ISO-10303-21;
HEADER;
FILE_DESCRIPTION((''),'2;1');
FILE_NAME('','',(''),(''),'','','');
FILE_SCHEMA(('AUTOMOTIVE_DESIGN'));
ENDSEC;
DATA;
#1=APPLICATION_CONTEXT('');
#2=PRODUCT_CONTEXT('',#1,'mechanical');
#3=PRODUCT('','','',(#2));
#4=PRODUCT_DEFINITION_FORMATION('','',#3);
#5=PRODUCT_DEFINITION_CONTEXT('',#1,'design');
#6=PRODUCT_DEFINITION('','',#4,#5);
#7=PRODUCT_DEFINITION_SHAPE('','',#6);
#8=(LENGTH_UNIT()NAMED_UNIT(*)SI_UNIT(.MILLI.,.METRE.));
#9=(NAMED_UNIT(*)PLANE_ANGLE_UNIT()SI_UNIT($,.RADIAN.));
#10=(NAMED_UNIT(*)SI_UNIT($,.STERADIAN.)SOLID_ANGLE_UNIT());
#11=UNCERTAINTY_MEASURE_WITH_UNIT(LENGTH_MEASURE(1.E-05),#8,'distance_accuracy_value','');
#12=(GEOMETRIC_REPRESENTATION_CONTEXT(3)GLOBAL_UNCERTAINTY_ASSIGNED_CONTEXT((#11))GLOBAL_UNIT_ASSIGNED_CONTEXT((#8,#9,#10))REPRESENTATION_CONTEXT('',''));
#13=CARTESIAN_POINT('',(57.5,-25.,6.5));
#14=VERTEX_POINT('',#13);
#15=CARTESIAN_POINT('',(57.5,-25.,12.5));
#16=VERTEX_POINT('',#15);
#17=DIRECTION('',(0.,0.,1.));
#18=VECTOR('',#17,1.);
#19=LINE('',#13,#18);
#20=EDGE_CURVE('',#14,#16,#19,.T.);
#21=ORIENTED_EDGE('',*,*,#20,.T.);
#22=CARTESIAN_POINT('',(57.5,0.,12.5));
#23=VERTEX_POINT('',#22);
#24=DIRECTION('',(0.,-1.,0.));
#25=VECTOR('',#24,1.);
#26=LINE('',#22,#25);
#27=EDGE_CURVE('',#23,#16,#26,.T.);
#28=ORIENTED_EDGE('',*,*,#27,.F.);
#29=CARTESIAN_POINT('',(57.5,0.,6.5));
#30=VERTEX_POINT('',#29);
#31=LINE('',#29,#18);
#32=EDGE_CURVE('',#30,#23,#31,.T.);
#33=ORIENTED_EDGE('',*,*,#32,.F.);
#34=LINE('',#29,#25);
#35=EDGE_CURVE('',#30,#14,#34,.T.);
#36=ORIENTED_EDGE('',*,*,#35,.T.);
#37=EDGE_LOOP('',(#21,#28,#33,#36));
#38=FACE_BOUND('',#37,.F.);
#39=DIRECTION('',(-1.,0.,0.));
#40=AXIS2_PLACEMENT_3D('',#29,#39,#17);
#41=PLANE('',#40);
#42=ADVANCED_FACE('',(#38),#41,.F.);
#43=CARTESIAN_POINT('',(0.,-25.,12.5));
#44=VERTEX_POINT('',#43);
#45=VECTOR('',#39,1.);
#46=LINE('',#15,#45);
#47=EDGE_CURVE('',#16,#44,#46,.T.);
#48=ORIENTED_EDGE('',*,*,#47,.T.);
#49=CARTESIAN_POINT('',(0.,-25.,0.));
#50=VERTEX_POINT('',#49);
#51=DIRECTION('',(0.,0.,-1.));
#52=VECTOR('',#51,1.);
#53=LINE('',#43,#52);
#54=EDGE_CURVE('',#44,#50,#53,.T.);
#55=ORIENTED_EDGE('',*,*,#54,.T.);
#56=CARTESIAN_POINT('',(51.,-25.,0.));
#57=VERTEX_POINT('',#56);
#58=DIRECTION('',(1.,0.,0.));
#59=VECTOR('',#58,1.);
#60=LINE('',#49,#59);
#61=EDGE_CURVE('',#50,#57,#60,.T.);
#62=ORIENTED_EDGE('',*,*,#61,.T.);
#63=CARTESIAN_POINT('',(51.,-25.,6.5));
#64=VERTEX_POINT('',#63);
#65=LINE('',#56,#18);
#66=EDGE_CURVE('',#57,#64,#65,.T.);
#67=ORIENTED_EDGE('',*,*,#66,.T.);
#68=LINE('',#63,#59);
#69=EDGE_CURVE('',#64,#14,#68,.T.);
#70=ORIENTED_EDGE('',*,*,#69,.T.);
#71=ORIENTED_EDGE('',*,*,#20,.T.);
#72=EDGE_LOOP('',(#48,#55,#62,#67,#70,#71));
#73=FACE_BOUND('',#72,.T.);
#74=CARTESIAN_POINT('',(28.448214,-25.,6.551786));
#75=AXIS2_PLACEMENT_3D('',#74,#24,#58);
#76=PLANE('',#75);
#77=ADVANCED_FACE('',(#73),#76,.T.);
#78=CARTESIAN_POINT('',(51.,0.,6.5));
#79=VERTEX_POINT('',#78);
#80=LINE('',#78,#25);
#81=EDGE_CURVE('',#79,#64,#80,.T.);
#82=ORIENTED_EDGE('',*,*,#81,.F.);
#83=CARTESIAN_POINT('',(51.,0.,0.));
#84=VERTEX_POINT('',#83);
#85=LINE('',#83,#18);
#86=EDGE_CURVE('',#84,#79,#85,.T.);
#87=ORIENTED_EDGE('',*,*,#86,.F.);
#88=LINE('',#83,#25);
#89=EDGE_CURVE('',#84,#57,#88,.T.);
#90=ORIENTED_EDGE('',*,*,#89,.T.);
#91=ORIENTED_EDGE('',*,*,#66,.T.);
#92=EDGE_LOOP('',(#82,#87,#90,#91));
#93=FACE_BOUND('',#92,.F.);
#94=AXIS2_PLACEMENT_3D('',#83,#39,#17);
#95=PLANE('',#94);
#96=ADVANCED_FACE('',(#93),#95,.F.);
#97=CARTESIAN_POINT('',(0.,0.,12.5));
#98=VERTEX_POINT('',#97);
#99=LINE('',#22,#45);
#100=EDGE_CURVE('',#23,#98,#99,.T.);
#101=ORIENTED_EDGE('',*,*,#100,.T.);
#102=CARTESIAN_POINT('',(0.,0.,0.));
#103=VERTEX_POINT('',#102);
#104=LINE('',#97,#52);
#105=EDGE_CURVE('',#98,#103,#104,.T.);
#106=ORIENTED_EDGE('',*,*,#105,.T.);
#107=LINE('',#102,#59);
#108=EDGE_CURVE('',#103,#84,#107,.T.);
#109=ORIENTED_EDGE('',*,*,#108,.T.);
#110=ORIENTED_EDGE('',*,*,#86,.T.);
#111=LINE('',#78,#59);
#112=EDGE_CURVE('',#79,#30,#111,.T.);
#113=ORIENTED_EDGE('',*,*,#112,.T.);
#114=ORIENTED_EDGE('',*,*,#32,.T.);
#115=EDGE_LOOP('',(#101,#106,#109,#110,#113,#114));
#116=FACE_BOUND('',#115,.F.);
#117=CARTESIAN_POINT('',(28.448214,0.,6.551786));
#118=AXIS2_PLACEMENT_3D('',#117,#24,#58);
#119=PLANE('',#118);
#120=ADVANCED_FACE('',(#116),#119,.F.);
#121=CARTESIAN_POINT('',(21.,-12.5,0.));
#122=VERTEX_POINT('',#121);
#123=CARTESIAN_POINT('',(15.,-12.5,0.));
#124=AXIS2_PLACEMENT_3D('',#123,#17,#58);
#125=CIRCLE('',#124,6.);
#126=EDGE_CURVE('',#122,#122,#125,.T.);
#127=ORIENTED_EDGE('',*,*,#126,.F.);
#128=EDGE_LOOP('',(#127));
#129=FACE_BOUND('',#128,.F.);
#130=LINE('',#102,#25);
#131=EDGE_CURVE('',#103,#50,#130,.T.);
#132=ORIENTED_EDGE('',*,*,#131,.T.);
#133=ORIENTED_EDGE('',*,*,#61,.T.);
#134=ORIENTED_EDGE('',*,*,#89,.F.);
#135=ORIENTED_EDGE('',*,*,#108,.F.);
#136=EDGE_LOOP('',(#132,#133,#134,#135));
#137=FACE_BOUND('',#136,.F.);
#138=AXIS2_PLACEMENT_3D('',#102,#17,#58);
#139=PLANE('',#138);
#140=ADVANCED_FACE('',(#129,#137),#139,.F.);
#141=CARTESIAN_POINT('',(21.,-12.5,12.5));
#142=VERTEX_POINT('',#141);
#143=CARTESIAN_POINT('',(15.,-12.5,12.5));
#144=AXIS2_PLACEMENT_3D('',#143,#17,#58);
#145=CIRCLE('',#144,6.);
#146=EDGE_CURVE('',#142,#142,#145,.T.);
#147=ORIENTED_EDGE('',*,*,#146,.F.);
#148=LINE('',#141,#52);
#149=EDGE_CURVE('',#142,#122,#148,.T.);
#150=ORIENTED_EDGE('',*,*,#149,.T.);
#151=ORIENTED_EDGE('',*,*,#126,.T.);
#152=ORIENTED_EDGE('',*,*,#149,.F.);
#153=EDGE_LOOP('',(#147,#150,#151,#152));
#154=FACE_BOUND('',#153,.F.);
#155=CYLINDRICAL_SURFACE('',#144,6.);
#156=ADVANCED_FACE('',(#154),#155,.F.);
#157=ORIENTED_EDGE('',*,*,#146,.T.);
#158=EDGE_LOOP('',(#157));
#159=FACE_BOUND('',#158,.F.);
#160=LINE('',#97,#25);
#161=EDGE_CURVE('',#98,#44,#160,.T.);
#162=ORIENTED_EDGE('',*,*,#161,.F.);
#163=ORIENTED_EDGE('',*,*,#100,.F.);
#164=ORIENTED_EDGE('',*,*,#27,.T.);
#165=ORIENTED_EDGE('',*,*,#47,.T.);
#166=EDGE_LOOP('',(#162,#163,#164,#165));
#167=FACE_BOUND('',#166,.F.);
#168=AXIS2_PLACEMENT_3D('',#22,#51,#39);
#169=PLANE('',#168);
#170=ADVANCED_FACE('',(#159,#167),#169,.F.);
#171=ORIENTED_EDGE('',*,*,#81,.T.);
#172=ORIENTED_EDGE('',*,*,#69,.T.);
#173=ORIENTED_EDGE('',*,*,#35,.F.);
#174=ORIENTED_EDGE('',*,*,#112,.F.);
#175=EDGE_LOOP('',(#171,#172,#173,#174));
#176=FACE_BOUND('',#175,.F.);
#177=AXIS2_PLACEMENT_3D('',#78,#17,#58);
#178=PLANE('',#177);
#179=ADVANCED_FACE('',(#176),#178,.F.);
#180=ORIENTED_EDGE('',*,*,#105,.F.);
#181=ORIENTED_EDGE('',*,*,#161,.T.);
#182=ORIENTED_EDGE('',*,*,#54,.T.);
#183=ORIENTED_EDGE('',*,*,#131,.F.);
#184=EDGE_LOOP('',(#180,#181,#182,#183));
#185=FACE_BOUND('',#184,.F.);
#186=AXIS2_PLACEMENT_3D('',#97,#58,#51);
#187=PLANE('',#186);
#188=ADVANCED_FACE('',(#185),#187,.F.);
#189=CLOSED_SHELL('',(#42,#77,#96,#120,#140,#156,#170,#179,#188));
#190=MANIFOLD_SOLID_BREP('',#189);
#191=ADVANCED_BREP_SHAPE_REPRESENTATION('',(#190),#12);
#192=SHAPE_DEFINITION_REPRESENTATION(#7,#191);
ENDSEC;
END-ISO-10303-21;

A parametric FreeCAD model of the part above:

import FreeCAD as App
import Part
import Sketcher

doc = App.newDocument("Part")
body = doc.addObject("PartDesign::Body", "Body")

# Sketch on XZ plane
sketch1 = doc.addObject("Sketcher::SketchObject", "Sketch")
body.addObject(sketch1)
sketch1.AttachmentSupport = (doc.XZ_Plane, [""])
sketch1.MapMode = "FlatFace"
sketch1.addGeometry([
    Part.LineSegment(App.Vector(0, 12, 0), App.Vector(0, 0, 0)),  # 0
    Part.LineSegment(App.Vector(0, 0, 0), App.Vector(51, 0, 0)),  # 1
    Part.LineSegment(App.Vector(51, 0, 0), App.Vector(51, 6, 0)),  # 2
    Part.LineSegment(App.Vector(51, 6, 0), App.Vector(58, 6, 0)),  # 3
    Part.LineSegment(App.Vector(58, 6, 0), App.Vector(58, 12, 0)),  # 4
    Part.LineSegment(App.Vector(58, 12, 0), App.Vector(0, 12, 0)),  # 5
], False)
sketch1.addConstraint([
    Sketcher.Constraint("Coincident", 0, 2, 1, 1),
    Sketcher.Constraint("Coincident", 1, 2, 2, 1),
    Sketcher.Constraint("Coincident", 2, 2, 3, 1),
    Sketcher.Constraint("Coincident", 3, 2, 4, 1),
    Sketcher.Constraint("Coincident", 4, 2, 5, 1),
    Sketcher.Constraint("Coincident", 5, 2, 0, 1),
    Sketcher.Constraint("Vertical", 0),
    Sketcher.Constraint("Horizontal", 1),
    Sketcher.Constraint("Vertical", 2),
    Sketcher.Constraint("Horizontal", 3),
    Sketcher.Constraint("Vertical", 4),
    Sketcher.Constraint("Horizontal", 5),
    Sketcher.Constraint("Coincident", 0, 2, -1, 1),
    Sketcher.Constraint("Equal", 3, 2),
    Sketcher.Constraint("DistanceX", 1, 1, 1, 2, 51.0),
    Sketcher.Constraint("DistanceY", 4, 1, 4, 2, 6.0),
    Sketcher.Constraint("DistanceX", 3, 1, 3, 2, 6.5),
])
pad1 = doc.addObject("PartDesign::Pad", "Pad")
body.addObject(pad1)
pad1.Profile = sketch1
pad1.Length = 25

# Sketch on XY plane
sketch2 = doc.addObject("Sketcher::SketchObject", "Sketch001")
body.addObject(sketch2)
sketch2.AttachmentSupport = (doc.XY_Plane, [""])
sketch2.MapMode = "FlatFace"
sketch2.AttachmentOffset = App.Placement(App.Vector(0, 0, 12.5), App.Rotation())
sketch2.addGeometry(Part.Circle(App.Vector(15, -12, 0), App.Vector(0, 0, 1), 6), False)
sketch2.addConstraint([
    Sketcher.Constraint("Diameter", 0, 12.0),
    Sketcher.Constraint("DistanceX", -1, 1, 0, 3, 15.0),
    Sketcher.Constraint("DistanceY", 0, 3, -1, 1, 12.5),
])
pocket1 = doc.addObject("PartDesign::Pocket", "Pocket")
body.addObject(pocket1)
pocket1.Profile = sketch2
pocket1.Type = "ThroughAll"

doc.recompute()
